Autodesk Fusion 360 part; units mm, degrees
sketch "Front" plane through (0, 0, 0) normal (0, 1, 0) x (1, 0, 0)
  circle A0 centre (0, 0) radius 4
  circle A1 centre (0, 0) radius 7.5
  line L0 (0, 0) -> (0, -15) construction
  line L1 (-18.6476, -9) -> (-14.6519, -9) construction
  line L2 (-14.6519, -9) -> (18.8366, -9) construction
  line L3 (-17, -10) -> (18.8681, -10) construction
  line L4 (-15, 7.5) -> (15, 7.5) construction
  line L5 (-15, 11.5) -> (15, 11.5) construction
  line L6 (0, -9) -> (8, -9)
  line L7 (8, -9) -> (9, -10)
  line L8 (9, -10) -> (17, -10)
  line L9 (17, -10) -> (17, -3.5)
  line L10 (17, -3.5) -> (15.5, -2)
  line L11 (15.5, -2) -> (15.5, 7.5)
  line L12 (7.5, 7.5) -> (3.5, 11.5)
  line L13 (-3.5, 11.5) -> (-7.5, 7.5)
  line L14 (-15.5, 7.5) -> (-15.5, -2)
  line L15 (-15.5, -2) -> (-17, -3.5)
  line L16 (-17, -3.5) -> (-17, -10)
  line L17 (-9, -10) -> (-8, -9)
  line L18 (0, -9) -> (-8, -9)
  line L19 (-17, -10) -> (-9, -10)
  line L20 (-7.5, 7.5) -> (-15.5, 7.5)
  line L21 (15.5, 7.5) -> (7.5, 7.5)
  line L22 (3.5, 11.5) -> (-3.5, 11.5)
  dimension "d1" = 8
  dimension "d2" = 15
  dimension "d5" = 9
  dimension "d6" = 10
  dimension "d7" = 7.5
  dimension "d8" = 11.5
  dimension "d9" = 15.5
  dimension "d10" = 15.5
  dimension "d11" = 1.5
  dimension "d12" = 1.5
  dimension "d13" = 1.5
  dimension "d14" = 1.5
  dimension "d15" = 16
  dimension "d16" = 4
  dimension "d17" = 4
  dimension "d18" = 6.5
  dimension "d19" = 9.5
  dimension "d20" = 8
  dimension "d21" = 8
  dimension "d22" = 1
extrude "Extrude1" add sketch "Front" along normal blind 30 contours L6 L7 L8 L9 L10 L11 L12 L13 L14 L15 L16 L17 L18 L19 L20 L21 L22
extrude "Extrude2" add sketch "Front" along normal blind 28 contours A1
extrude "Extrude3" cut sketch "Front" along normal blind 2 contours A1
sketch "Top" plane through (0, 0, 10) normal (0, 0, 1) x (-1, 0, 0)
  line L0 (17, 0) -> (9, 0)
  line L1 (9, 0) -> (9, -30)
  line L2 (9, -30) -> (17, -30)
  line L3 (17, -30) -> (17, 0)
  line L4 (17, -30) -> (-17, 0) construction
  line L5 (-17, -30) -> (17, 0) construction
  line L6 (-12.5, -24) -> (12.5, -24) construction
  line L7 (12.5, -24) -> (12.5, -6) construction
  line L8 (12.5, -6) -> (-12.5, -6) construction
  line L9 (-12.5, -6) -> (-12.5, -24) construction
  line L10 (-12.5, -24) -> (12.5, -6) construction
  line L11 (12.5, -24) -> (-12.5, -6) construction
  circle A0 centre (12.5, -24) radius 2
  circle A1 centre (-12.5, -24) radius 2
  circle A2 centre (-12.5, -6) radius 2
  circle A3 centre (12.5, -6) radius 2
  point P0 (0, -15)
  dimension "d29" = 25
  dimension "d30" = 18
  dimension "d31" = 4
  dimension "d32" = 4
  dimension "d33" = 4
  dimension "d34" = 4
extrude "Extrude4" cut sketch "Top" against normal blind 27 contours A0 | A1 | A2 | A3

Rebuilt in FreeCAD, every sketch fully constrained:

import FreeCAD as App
import Part
import Sketcher
from FreeCAD import Vector

doc = App.newDocument("Part")
body = doc.addObject("PartDesign::Body", "Body")

sketch1 = body.newObject("Sketcher::SketchObject", "Sketch")
sketch1.AttachmentSupport = (doc.getObject("XZ_Plane"), [""])
sketch1.MapMode = "FlatFace"
sketch1.addGeometry([
    Part.LineSegment(Vector(-8, 9, 0), Vector(8, 9, 0)),
    Part.LineSegment(Vector(8, 9, 0), Vector(9, 10, 0)),
    Part.LineSegment(Vector(9, 10, 0), Vector(17, 10, 0)),
    Part.LineSegment(Vector(17, 10, 0), Vector(17, 3.5, 0)),
    Part.LineSegment(Vector(17, 3.5, 0), Vector(15.5, 2, 0)),
    Part.LineSegment(Vector(15.5, 2, 0), Vector(15.5, -7.5, 0)),
    Part.LineSegment(Vector(15.5, -7.5, 0), Vector(7.5, -7.5, 0)),
    Part.LineSegment(Vector(7.5, -7.5, 0), Vector(3.5, -11.5, 0)),
    Part.LineSegment(Vector(3.5, -11.5, 0), Vector(-3.5, -11.5, 0)),
    Part.LineSegment(Vector(-3.5, -11.5, 0), Vector(-7.5, -7.5, 0)),
    Part.LineSegment(Vector(-7.5, -7.5, 0), Vector(-15.5, -7.5, 0)),
    Part.LineSegment(Vector(-15.5, -7.5, 0), Vector(-15.5, 2, 0)),
    Part.LineSegment(Vector(-15.5, 2, 0), Vector(-17, 3.5, 0)),
    Part.LineSegment(Vector(-17, 3.5, 0), Vector(-17, 10, 0)),
    Part.LineSegment(Vector(-17, 10, 0), Vector(-9, 10, 0)),
    Part.LineSegment(Vector(-9, 10, 0), Vector(-8, 9, 0)),
    Part.Circle(Vector(0, 0, 0), Vector(0, 0, 1), 7.5),
], False)
sketch1.addConstraint([
    Sketcher.Constraint("Coincident", 0, 2, 1, 1),
    Sketcher.Constraint("Coincident", 1, 2, 2, 1),
    Sketcher.Constraint("Coincident", 2, 2, 3, 1),
    Sketcher.Constraint("Coincident", 3, 2, 4, 1),
    Sketcher.Constraint("Coincident", 4, 2, 5, 1),
    Sketcher.Constraint("Coincident", 5, 2, 6, 1),
    Sketcher.Constraint("Coincident", 6, 2, 7, 1),
    Sketcher.Constraint("Coincident", 7, 2, 8, 1),
    Sketcher.Constraint("Coincident", 8, 2, 9, 1),
    Sketcher.Constraint("Coincident", 9, 2, 10, 1),
    Sketcher.Constraint("Coincident", 10, 2, 11, 1),
    Sketcher.Constraint("Coincident", 11, 2, 12, 1),
    Sketcher.Constraint("Coincident", 12, 2, 13, 1),
    Sketcher.Constraint("Coincident", 13, 2, 14, 1),
    Sketcher.Constraint("Coincident", 14, 2, 15, 1),
    Sketcher.Constraint("Coincident", 15, 2, 0, 1),
    Sketcher.Constraint("Horizontal", 0),
    Sketcher.Constraint("Horizontal", 2),
    Sketcher.Constraint("Vertical", 3),
    Sketcher.Constraint("Vertical", 5),
    Sketcher.Constraint("Horizontal", 6),
    Sketcher.Constraint("Horizontal", 8),
    Sketcher.Constraint("Horizontal", 10),
    Sketcher.Constraint("Vertical", 11),
    Sketcher.Constraint("Vertical", 13),
    Sketcher.Constraint("Horizontal", 14),
    Sketcher.Constraint("Coincident", 16, 3, -1, 1),
    Sketcher.Constraint("Symmetric", 6, 2, 9, 2, -2),
    Sketcher.Constraint("Symmetric", 4, 2, 11, 2, -2),
    Sketcher.Constraint("Symmetric", 3, 2, 12, 2, -2),
    Sketcher.Constraint("Symmetric", 1, 2, 14, 2, -2),
    Sketcher.Constraint("Parallel", 1, 4),
    Sketcher.Constraint("Parallel", 4, 7),
    Sketcher.Constraint("Perpendicular", 7, 9),
    Sketcher.Constraint("Parallel", 9, 12),
    Sketcher.Constraint("Parallel", 12, 15),
    Sketcher.Constraint("Equal", 2, 6),
    Sketcher.Constraint("Diameter", 16, 15.0),
    Sketcher.Constraint("DistanceX", 0, 1, 0, 2, 16.0),
    Sketcher.Constraint("DistanceX", 2, 1, 2, 2, 8.0),
    Sketcher.Constraint("DistanceY", 3, 2, 3, 1, 6.5),
    Sketcher.Constraint("DistanceY", 5, 2, 5, 1, 9.5),
    Sketcher.Constraint("DistanceY", -1, 1, 0, 2, 9.0),
    Sketcher.Constraint("DistanceX", -1, 1, 1, 2, 9.0),
    Sketcher.Constraint("DistanceY", 4, 2, 2, 2, 8.0),
    Sketcher.Constraint("DistanceX", 7, 2, 6, 2, 4.0),
])
pad1 = body.newObject("PartDesign::Pad", "Pad")
pad1.Profile = sketch1
pad1.Length = 30
pad1.Reversed = True

sketch2 = body.newObject("Sketcher::SketchObject", "Sketch001")
sketch2.AttachmentSupport = (doc.getObject("XZ_Plane"), [""])
sketch2.MapMode = "FlatFace"
sketch2.addGeometry([
    Part.Circle(Vector(0, 0, 0), Vector(0, 0, 1), 7.5),
    Part.Circle(Vector(0, 0, 0), Vector(0, 0, 1), 4),
], False)
sketch2.addConstraint([
    Sketcher.Constraint("Coincident", 0, 3, -1, 1),
    Sketcher.Constraint("Coincident", 1, 3, -1, 1),
    Sketcher.Constraint("Diameter", 0, 15.0),
    Sketcher.Constraint("Diameter", 1, 8.0),
])
pad2 = body.newObject("PartDesign::Pad", "Pad001")
pad2.Profile = sketch2
pad2.Length = 28
pad2.Reversed = True

sketch3 = body.newObject("Sketcher::SketchObject", "Sketch002")
sketch3.AttachmentSupport = (doc.getObject("XZ_Plane"), [""])
sketch3.MapMode = "FlatFace"
sketch3.addGeometry([
    Part.Circle(Vector(0, 0, 0), Vector(0, 0, 1), 7.5),
    Part.Circle(Vector(0, 0, 0), Vector(0, 0, 1), 4),
], False)
sketch3.addConstraint([
    Sketcher.Constraint("Coincident", 0, 3, -1, 1),
    Sketcher.Constraint("Coincident", 1, 3, -1, 1),
    Sketcher.Constraint("Diameter", 0, 15.0),
    Sketcher.Constraint("Diameter", 1, 8.0),
])
pocket1 = body.newObject("PartDesign::Pocket", "Pocket")
pocket1.Profile = sketch3
pocket1.Length = 2

sketch4 = body.newObject("Sketcher::SketchObject", "Sketch003")
sketch4.AttachmentSupport = (doc.getObject("XY_Plane"), [""])
sketch4.MapMode = "FlatFace"
sketch4.AttachmentOffset = App.Placement(Vector(0, 0, 10), App.Rotation())
sketch4.addGeometry([
    Part.Circle(Vector(-12.5, 24, 0), Vector(0, 0, 1), 2),
    Part.Circle(Vector(12.5, 24, 0), Vector(0, 0, 1), 2),
    Part.Circle(Vector(12.5, 6, 0), Vector(0, 0, 1), 2),
    Part.Circle(Vector(-12.5, 6, 0), Vector(0, 0, 1), 2),
], False)
sketch4.addConstraint([
    Sketcher.Constraint("Equal", 0, 1),
    Sketcher.Constraint("Equal", 1, 2),
    Sketcher.Constraint("Equal", 2, 3),
    Sketcher.Constraint("Symmetric", 0, 3, 1, 3, -2),
    Sketcher.Constraint("Symmetric", 2, 3, 3, 3, -2),
    Sketcher.Constraint("Vertical", 1, 3, 2, 3),
    Sketcher.Constraint("Diameter", 0, 4.0),
    Sketcher.Constraint("DistanceX", 0, 3, 1, 3, 25.0),
    Sketcher.Constraint("DistanceY", 2, 3, 1, 3, 18.0),
    Sketcher.Constraint("DistanceY", -1, 1, 0, 3, 24.0),
])
pocket2 = body.newObject("PartDesign::Pocket", "Pocket001")
pocket2.Profile = sketch4
pocket2.Length = 27

doc.recompute()
